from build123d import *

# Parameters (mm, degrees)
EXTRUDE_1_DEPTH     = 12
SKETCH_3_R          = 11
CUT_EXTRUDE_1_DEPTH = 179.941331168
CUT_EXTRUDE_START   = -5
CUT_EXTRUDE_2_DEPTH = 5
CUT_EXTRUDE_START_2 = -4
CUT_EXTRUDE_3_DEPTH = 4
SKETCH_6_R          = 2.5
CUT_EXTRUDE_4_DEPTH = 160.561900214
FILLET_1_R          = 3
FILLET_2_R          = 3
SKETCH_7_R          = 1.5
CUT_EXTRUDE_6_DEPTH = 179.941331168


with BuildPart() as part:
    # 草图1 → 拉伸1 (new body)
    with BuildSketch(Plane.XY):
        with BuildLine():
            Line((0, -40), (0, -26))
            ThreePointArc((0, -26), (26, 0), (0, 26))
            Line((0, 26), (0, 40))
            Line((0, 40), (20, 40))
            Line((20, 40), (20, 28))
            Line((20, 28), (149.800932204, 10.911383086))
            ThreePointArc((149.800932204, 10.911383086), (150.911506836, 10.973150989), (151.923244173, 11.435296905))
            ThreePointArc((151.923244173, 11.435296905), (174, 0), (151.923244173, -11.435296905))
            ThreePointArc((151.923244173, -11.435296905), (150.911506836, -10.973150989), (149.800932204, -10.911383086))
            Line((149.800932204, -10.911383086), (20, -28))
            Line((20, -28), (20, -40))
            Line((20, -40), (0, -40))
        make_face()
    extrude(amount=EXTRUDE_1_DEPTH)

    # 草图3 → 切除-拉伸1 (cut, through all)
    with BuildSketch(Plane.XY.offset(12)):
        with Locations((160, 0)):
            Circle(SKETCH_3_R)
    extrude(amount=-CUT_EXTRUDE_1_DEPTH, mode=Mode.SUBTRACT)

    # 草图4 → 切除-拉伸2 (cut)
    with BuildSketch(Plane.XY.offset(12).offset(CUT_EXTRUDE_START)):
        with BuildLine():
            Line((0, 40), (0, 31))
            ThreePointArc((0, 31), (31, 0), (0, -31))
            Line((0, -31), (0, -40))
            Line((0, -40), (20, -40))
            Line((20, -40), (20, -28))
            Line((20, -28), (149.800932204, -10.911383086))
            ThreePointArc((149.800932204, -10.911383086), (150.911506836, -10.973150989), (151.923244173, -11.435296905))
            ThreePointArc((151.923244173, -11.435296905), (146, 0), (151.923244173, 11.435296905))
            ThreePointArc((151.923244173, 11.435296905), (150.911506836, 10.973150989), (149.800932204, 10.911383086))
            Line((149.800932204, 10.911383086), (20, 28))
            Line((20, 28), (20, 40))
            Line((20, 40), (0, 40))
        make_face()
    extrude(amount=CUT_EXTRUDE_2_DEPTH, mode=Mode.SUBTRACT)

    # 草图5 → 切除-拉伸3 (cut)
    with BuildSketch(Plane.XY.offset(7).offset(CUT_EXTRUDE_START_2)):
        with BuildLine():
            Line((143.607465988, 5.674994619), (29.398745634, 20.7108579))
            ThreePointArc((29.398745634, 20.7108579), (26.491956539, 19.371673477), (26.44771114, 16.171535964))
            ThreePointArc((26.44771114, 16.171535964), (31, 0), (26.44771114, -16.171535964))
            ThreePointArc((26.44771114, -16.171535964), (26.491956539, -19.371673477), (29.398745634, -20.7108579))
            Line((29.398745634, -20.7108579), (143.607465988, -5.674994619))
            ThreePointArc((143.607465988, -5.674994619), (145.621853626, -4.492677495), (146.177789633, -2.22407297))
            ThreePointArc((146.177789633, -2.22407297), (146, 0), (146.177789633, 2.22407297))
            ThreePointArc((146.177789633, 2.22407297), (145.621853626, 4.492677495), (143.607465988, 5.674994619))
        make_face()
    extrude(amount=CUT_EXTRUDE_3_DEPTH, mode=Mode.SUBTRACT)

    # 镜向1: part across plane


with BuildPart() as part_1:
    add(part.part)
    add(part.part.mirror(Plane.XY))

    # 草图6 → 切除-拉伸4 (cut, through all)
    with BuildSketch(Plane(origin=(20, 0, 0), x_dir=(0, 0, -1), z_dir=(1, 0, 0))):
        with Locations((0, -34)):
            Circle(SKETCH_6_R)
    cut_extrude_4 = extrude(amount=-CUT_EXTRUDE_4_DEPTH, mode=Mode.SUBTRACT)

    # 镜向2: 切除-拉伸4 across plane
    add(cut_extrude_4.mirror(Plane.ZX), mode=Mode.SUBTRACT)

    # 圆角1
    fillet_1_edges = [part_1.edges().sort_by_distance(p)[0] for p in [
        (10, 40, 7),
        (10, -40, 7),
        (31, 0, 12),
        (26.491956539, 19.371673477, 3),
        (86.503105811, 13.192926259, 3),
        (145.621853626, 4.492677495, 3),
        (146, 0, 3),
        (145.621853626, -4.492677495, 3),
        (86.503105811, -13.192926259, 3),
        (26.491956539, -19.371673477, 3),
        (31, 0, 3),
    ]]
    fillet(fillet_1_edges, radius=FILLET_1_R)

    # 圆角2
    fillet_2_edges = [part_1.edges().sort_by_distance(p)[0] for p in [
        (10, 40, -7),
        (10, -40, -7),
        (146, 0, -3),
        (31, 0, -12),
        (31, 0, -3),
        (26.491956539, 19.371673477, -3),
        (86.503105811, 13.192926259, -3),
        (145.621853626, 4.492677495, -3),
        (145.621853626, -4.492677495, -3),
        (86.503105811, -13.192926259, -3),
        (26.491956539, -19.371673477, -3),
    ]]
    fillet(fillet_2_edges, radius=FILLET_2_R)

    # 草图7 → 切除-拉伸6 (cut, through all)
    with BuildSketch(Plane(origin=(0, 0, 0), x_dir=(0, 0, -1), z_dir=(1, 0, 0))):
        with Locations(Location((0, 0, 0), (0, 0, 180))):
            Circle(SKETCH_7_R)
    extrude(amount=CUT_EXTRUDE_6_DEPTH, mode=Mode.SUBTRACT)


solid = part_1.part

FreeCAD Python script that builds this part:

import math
import FreeCAD as App
import Part
import Sketcher

V = App.Vector
Q = App.Units.Quantity


def edges_at(feature, points):
    """Names of the edges that pass closest to the given points."""
    edges = feature.Shape.Edges
    near = lambda p: min(range(len(edges)), key=lambda i: edges[i].distToShape(Part.Vertex(*p))[0])
    return sorted({f"Edge{near(p) + 1}" for p in points})

doc = App.newDocument("Part")
params = doc.addObject("Spreadsheet::Sheet", "Params")
for row, (alias, value) in enumerate([
    ("sketch1_radius", "3 mm"),
    ("sketch1_radius2", "14 mm"),
    ("sketch1_radius3", "26 mm"),
    ("sketch1_width", "20 mm"),
    ("sketch1_height", "14 mm"),
    ("pad1_length", "12 mm"),
    ("sketch2_diameter", "22 mm"),
    ("sketch3_radius", "31 mm"),
    ("sketch3_radius2", "3 mm"),
    ("sketch3_radius3", "14 mm"),
    ("sketch3_width", "20 mm"),
    ("sketch3_height", "9 mm"),
    ("pocket2_length", "5 mm"),
    ("sketch4_radius", "3 mm"),
    ("sketch4_radius2", "31 mm"),
    ("sketch4_radius3", "14 mm"),
    ("pocket3_length", "4 mm"),
    ("sketch5_diameter", "5 mm"),
    ("fillet_radius", "3 mm"),
    ("fillet2_radius", "3 mm"),
    ("sketch6_diameter", "3 mm"),
], start=1):
    params.set(f"A{row}", alias)
    params.set(f"B{row}", "=" + value)
    params.setAlias(f"B{row}", alias)

body = doc.addObject("PartDesign::Body", "Body")

# Sketch on XY plane
sketch1 = doc.addObject("Sketcher::SketchObject", "Sketch")
body.addObject(sketch1)
sketch1.AttachmentSupport = (doc.XY_Plane, [""])
sketch1.MapMode = "FlatFace"
sketch1.addGeometry(Part.LineSegment(V(0, -26, 0), V(0, -40, 0)), False)
sketch1.addGeometry(Part.LineSegment(V(0, -40, 0), V(20, -40, 0)), False)
sketch1.addGeometry(Part.LineSegment(V(20, -40, 0), V(20, -28, 0)), False)
sketch1.addGeometry(Part.LineSegment(V(20, -28, 0), V(149.8, -10.9, 0)), False)
sketch1.addGeometry(Part.ArcOfCircle(Part.Circle(V(150.2, -13.9, 0), V(0, 0, 1), 3), math.radians(55), math.radians(97)), False)
sketch1.addGeometry(Part.ArcOfCircle(Part.Circle(V(160, 0, 0), V(0, 0, 1), 14), math.radians(-125), math.radians(125)), False)
sketch1.addGeometry(Part.ArcOfCircle(Part.Circle(V(150.2, 13.9, 0), V(0, 0, 1), 3), math.radians(-97), math.radians(-55)), False)
sketch1.addGeometry(Part.LineSegment(V(149.8, 10.9, 0), V(20, 28, 0)), False)
sketch1.addGeometry(Part.LineSegment(V(20, 28, 0), V(20, 40, 0)), False)
sketch1.addGeometry(Part.LineSegment(V(20, 40, 0), V(0, 40, 0)), False)
sketch1.addGeometry(Part.LineSegment(V(0, 40, 0), V(0, 26, 0)), False)
sketch1.addGeometry(Part.ArcOfCircle(Part.Circle(V(0, 0, 0), V(0, 0, 1), 26), math.radians(-90), math.radians(90)), False)
sketch1.addConstraint(Sketcher.Constraint("Coincident", 0, 2, 1, 1))
sketch1.addConstraint(Sketcher.Constraint("Coincident", 1, 2, 2, 1))
sketch1.addConstraint(Sketcher.Constraint("Coincident", 2, 2, 3, 1))
sketch1.addConstraint(Sketcher.Constraint("Tangent", 3, 2, 4, 2))
sketch1.addConstraint(Sketcher.Constraint("Tangent", 4, 1, 5, 1))
sketch1.addConstraint(Sketcher.Constraint("Tangent", 5, 2, 6, 2))
sketch1.addConstraint(Sketcher.Constraint("Tangent", 6, 1, 7, 1))
sketch1.addConstraint(Sketcher.Constraint("Coincident", 7, 2, 8, 1))
sketch1.addConstraint(Sketcher.Constraint("Coincident", 8, 2, 9, 1))
sketch1.addConstraint(Sketcher.Constraint("Coincident", 9, 2, 10, 1))
sketch1.addConstraint(Sketcher.Constraint("Coincident", 10, 2, 11, 2))
sketch1.addConstraint(Sketcher.Constraint("Coincident", 11, 1, 0, 1))
sketch1.addConstraint(Sketcher.Constraint("Vertical", 0))
sketch1.addConstraint(Sketcher.Constraint("Horizontal", 1))
sketch1.addConstraint(Sketcher.Constraint("Vertical", 2))
sketch1.addConstraint(Sketcher.Constraint("Vertical", 8))
sketch1.addConstraint(Sketcher.Constraint("Horizontal", 9))
sketch1.addConstraint(Sketcher.Constraint("Vertical", 10))
sketch1.addConstraint(Sketcher.Constraint("Coincident", 11, 3, -1, 1))
sketch1.addConstraint(Sketcher.Constraint("Equal", 4, 6))
sketch1.addConstraint(Sketcher.Constraint("Symmetric", 0, 2, 9, 2, -1, 1))
sketch1.addConstraint(Sketcher.Constraint("Symmetric", 4, 3, 6, 3, -1))
sketch1.addConstraint(Sketcher.Constraint("Symmetric", 2, 2, 7, 2, -1))
sketch1.addConstraint(Sketcher.Constraint("PointOnObject", 0, 2, -2))
sketch1.addConstraint(Sketcher.Constraint("Radius", 4, Q("3 mm")))
sketch1.addConstraint(Sketcher.Constraint("Radius", 5, Q("14 mm")))
sketch1.addConstraint(Sketcher.Constraint("Radius", 11, Q("26 mm")))
sketch1.addConstraint(Sketcher.Constraint("DistanceX", 1, 1, 1, 2, Q("20 mm")))
sketch1.addConstraint(Sketcher.Constraint("DistanceY", 0, 2, 0, 1, Q("14 mm")))
sketch1.addConstraint(Sketcher.Constraint("DistanceY", 2, 1, 2, 2, Q("12 mm")))
sketch1.addConstraint(Sketcher.Constraint("DistanceX", -1, 1, 5, 3, Q("160 mm")))
sketch1.addConstraint(Sketcher.Constraint("Angle", 3, Q("7.5 deg")))
sketch1.setExpression("Constraints[24]", "Params.sketch1_radius")
sketch1.setExpression("Constraints[25]", "Params.sketch1_radius2")
sketch1.setExpression("Constraints[26]", "Params.sketch1_radius3")
sketch1.setExpression("Constraints[27]", "Params.sketch1_width")
sketch1.setExpression("Constraints[28]", "Params.sketch1_height")
pad1 = doc.addObject("PartDesign::Pad", "Pad")
body.addObject(pad1)
pad1.Profile = sketch1
pad1.setExpression("Length", "Params.pad1_length")

# Sketch on XY plane
sketch2 = doc.addObject("Sketcher::SketchObject", "Sketch001")
body.addObject(sketch2)
sketch2.AttachmentSupport = (doc.XY_Plane, [""])
sketch2.MapMode = "FlatFace"
sketch2.AttachmentOffset = App.Placement(V(0, 0, 12), App.Rotation())
sketch2.addGeometry(Part.Circle(V(160, 0, 0), V(0, 0, 1), 11), False)
sketch2.addConstraint(Sketcher.Constraint("PointOnObject", 0, 3, -1))
sketch2.addConstraint(Sketcher.Constraint("Diameter", 0, Q("22 mm")))
sketch2.addConstraint(Sketcher.Constraint("DistanceX", -1, 1, 0, 3, Q("160 mm")))
sketch2.setExpression("Constraints[1]", "Params.sketch2_diameter")
pocket1 = doc.addObject("PartDesign::Pocket", "Pocket")
body.addObject(pocket1)
pocket1.Profile = sketch2
pocket1.Type = "ThroughAll"

# Sketch on XY plane
sketch3 = doc.addObject("Sketcher::SketchObject", "Sketch002")
body.addObject(sketch3)
sketch3.AttachmentSupport = (doc.XY_Plane, [""])
sketch3.MapMode = "FlatFace"
sketch3.AttachmentOffset = App.Placement(V(0, 0, 7), App.Rotation())
sketch3.addGeometry(Part.LineSegment(V(0, 40, 0), V(0, 31, 0)), False)
sketch3.addGeometry(Part.ArcOfCircle(Part.Circle(V(0, 0, 0), V(0, 0, 1), 31), math.radians(-90), math.radians(90)), False)
sketch3.addGeometry(Part.LineSegment(V(0, -31, 0), V(0, -40, 0)), False)
sketch3.addGeometry(Part.LineSegment(V(0, -40, 0), V(20, -40, 0)), False)
sketch3.addGeometry(Part.LineSegment(V(20, -40, 0), V(20, -28, 0)), False)
sketch3.addGeometry(Part.LineSegment(V(20, -28, 0), V(149.8, -10.9, 0)), False)
sketch3.addGeometry(Part.ArcOfCircle(Part.Circle(V(150.2, -13.9, 0), V(0, 0, 1), 3), math.radians(55), math.radians(97)), False)
sketch3.addGeometry(Part.ArcOfCircle(Part.Circle(V(160, 0, 0), V(0, 0, 1), 14), math.radians(125), math.radians(235)), False)
sketch3.addGeometry(Part.ArcOfCircle(Part.Circle(V(150.2, 13.9, 0), V(0, 0, 1), 3), math.radians(-97), math.radians(-55)), False)
sketch3.addGeometry(Part.LineSegment(V(149.8, 10.9, 0), V(20, 28, 0)), False)
sketch3.addGeometry(Part.LineSegment(V(20, 28, 0), V(20, 40, 0)), False)
sketch3.addGeometry(Part.LineSegment(V(20, 40, 0), V(0, 40, 0)), False)
sketch3.addConstraint(Sketcher.Constraint("Coincident", 0, 2, 1, 2))
sketch3.addConstraint(Sketcher.Constraint("Coincident", 1, 1, 2, 1))
sketch3.addConstraint(Sketcher.Constraint("Coincident", 2, 2, 3, 1))
sketch3.addConstraint(Sketcher.Constraint("Coincident", 3, 2, 4, 1))
sketch3.addConstraint(Sketcher.Constraint("Coincident", 4, 2, 5, 1))
sketch3.addConstraint(Sketcher.Constraint("Tangent", 5, 2, 6, 2))
sketch3.addConstraint(Sketcher.Constraint("Tangent", 6, 1, 7, 2))
sketch3.addConstraint(Sketcher.Constraint("Tangent", 7, 1, 8, 2))
sketch3.addConstraint(Sketcher.Constraint("Tangent", 8, 1, 9, 1))
sketch3.addConstraint(Sketcher.Constraint("Coincident", 9, 2, 10, 1))
sketch3.addConstraint(Sketcher.Constraint("Coincident", 10, 2, 11, 1))
sketch3.addConstraint(Sketcher.Constraint("Coincident", 11, 2, 0, 1))
sketch3.addConstraint(Sketcher.Constraint("Vertical", 0))
sketch3.addConstraint(Sketcher.Constraint("Vertical", 2))
sketch3.addConstraint(Sketcher.Constraint("Horizontal", 3))
sketch3.addConstraint(Sketcher.Constraint("Vertical", 4))
sketch3.addConstraint(Sketcher.Constraint("Vertical", 10))
sketch3.addConstraint(Sketcher.Constraint("Horizontal", 11))
sketch3.addConstraint(Sketcher.Constraint("Coincident", 1, 3, -1, 1))
sketch3.addConstraint(Sketcher.Constraint("Equal", 6, 8))
sketch3.addConstraint(Sketcher.Constraint("Symmetric", 2, 2, 11, 2, -1, 1))
sketch3.addConstraint(Sketcher.Constraint("Symmetric", 6, 3, 8, 3, -1))
sketch3.addConstraint(Sketcher.Constraint("Symmetric", 4, 2, 9, 2, -1))
sketch3.addConstraint(Sketcher.Constraint("PointOnObject", 0, 2, -2))
sketch3.addConstraint(Sketcher.Constraint("Radius", 1, Q("31 mm")))
sketch3.addConstraint(Sketcher.Constraint("Radius", 6, Q("3 mm")))
sketch3.addConstraint(Sketcher.Constraint("Radius", 7, Q("14 mm")))
sketch3.addConstraint(Sketcher.Constraint("DistanceX", 3, 1, 3, 2, Q("20 mm")))
sketch3.addConstraint(Sketcher.Constraint("DistanceY", 0, 2, 0, 1, Q("9 mm")))
sketch3.addConstraint(Sketcher.Constraint("DistanceY", 4, 1, 4, 2, Q("12 mm")))
sketch3.addConstraint(Sketcher.Constraint("DistanceX", -1, 1, 7, 3, Q("160 mm")))
sketch3.addConstraint(Sketcher.Constraint("Angle", 5, Q("7.5 deg")))
sketch3.setExpression("Constraints[24]", "Params.sketch3_radius")
sketch3.setExpression("Constraints[25]", "Params.sketch3_radius2")
sketch3.setExpression("Constraints[26]", "Params.sketch3_radius3")
sketch3.setExpression("Constraints[27]", "Params.sketch3_width")
sketch3.setExpression("Constraints[28]", "Params.sketch3_height")
pocket2 = doc.addObject("PartDesign::Pocket", "Pocket001")
body.addObject(pocket2)
pocket2.Profile = sketch3
pocket2.setExpression("Length", "Params.pocket2_length")
pocket2.Reversed = True

# Sketch on XY plane
sketch4 = doc.addObject("Sketcher::SketchObject", "Sketch003")
body.addObject(sketch4)
sketch4.AttachmentSupport = (doc.XY_Plane, [""])
sketch4.MapMode = "FlatFace"
sketch4.AttachmentOffset = App.Placement(V(0, 0, 3), App.Rotation())
sketch4.addGeometry(Part.LineSegment(V(143.6, 5.7, 0), V(29.4, 20.7, 0)), False)
sketch4.addGeometry(Part.ArcOfCircle(Part.Circle(V(29, 17.7, 0), V(0, 0, 1), 3), math.radians(82), math.radians(211)), False)
sketch4.addGeometry(Part.ArcOfCircle(Part.Circle(V(0, 0, 0), V(0, 0, 1), 31), math.radians(-31), math.radians(31)), False)
sketch4.addGeometry(Part.ArcOfCircle(Part.Circle(V(29, -17.7, 0), V(0, 0, 1), 3), math.radians(149), math.radians(278)), False)
sketch4.addGeometry(Part.LineSegment(V(29.4, -20.7, 0), V(143.6, -5.7, 0)), False)
sketch4.addGeometry(Part.ArcOfCircle(Part.Circle(V(143.2, -2.7, 0), V(0, 0, 1), 3), math.radians(-83), math.radians(9)), False)
sketch4.addGeometry(Part.ArcOfCircle(Part.Circle(V(160, 0, 0), V(0, 0, 1), 14), math.radians(170.86), math.radians(189.14)), False)
sketch4.addGeometry(Part.ArcOfCircle(Part.Circle(V(143.2, 2.7, 0), V(0, 0, 1), 3), math.radians(-9), math.radians(83)), False)
sketch4.addConstraint(Sketcher.Constraint("Tangent", 0, 2, 1, 1))
sketch4.addConstraint(Sketcher.Constraint("Tangent", 1, 2, 2, 2))
sketch4.addConstraint(Sketcher.Constraint("Tangent", 2, 1, 3, 1))
sketch4.addConstraint(Sketcher.Constraint("Tangent", 3, 2, 4, 1))
sketch4.addConstraint(Sketcher.Constraint("Tangent", 4, 2, 5, 1))
sketch4.addConstraint(Sketcher.Constraint("Tangent", 5, 2, 6, 2))
sketch4.addConstraint(Sketcher.Constraint("Tangent", 6, 1, 7, 1))
sketch4.addConstraint(Sketcher.Constraint("Tangent", 7, 2, 0, 1))
sketch4.addConstraint(Sketcher.Constraint("Coincident", 2, 3, -1, 1))
sketch4.addConstraint(Sketcher.Constraint("Equal", 1, 3))
sketch4.addConstraint(Sketcher.Constraint("Equal", 3, 5))
sketch4.addConstraint(Sketcher.Constraint("Equal", 5, 7))
sketch4.addConstraint(Sketcher.Constraint("Symmetric", 5, 3, 7, 3, -1))
sketch4.addConstraint(Sketcher.Constraint("Vertical", 1, 3, 3, 3))
sketch4.addConstraint(Sketcher.Constraint("Radius", 1, Q("3 mm")))
sketch4.addConstraint(Sketcher.Constraint("Radius", 2, Q("31 mm")))
sketch4.addConstraint(Sketcher.Constraint("Radius", 6, Q("14 mm")))
sketch4.addConstraint(Sketcher.Constraint("DistanceX", -1, 1, 6, 3, Q("160 mm")))
sketch4.addConstraint(Sketcher.Constraint("Angle", 0, Q("172.5 deg")))
sketch4.addConstraint(Sketcher.Constraint("DistanceX", 3, 3, 4, 2, Q("114.600299 mm")))
sketch4.setExpression("Constraints[14]", "Params.sketch4_radius")
sketch4.setExpression("Constraints[15]", "Params.sketch4_radius2")
sketch4.setExpression("Constraints[16]", "Params.sketch4_radius3")
pocket3 = doc.addObject("PartDesign::Pocket", "Pocket002")
body.addObject(pocket3)
pocket3.Profile = sketch4
pocket3.setExpression("Length", "Params.pocket3_length")
pocket3.Reversed = True
body2 = doc.addObject("PartDesign::Body", "Body001")
doc.recompute()

body2.BaseFeature = body
doc.recompute()

mirroring = doc.addObject("Part::Mirroring", "Mirroring")
mirroring.Source = body
mirroring.Base = V(0, 0, 0)
mirroring.Normal = V(0, 0, 1)
body3 = doc.addObject("PartDesign::Body", "Body002")
body3.BaseFeature = mirroring
boolean = doc.addObject("PartDesign::Boolean", "Boolean")
body2.addObject(boolean)
boolean.Type = "Fuse"
boolean.addObjects([body3])
doc.recompute()

# Sketch on YZ plane
sketch5 = doc.addObject("Sketcher::SketchObject", "Sketch004")
body2.addObject(sketch5)
sketch5.AttachmentSupport = (doc.getObject("YZ_Plane001"), [""])
sketch5.MapMode = "FlatFace"
sketch5.AttachmentOffset = App.Placement(V(0, 0, 20), App.Rotation())
sketch5.addGeometry(Part.Circle(V(-34, 0, 0), V(0, 0, 1), 2.5), False)
sketch5.addConstraint(Sketcher.Constraint("PointOnObject", 0, 3, -1))
sketch5.addConstraint(Sketcher.Constraint("Diameter", 0, Q("5 mm")))
sketch5.addConstraint(Sketcher.Constraint("DistanceX", 0, 3, -1, 1, Q("34 mm")))
sketch5.setExpression("Constraints[1]", "Params.sketch5_diameter")
pocket4 = doc.addObject("PartDesign::Pocket", "Pocket003")
body2.addObject(pocket4)
pocket4.Profile = sketch5
pocket4.Type = "ThroughAll"
doc.recompute()

mirrored = doc.addObject("PartDesign::Mirrored", "Mirrored")
body2.addObject(mirrored)
mirrored.Originals = [pocket4]
mirrored.MirrorPlane = (doc.getObject("XZ_Plane001"), [""])
body2.Tip = mirrored
doc.recompute()

fillet = doc.addObject("PartDesign::Fillet", "Fillet")
body2.addObject(fillet)
fillet.Base = (mirrored, edges_at(mirrored, [
    (10, 40, 7),
    (10, -40, 7),
    (31, 0, 12),
    (26.492, 19.372, 3),
    (86.503, 13.193, 3),
    (145.622, 4.493, 3),
    (146, 0, 3),
    (145.622, -4.493, 3),
    (86.503, -13.193, 3),
    (26.492, -19.372, 3),
    (31, 0, 3),
]))
fillet.setExpression("Radius", "Params.fillet_radius")
doc.recompute()

fillet2 = doc.addObject("PartDesign::Fillet", "Fillet001")
body2.addObject(fillet2)
fillet2.Base = (fillet, edges_at(fillet, [
    (10, 40, -7),
    (10, -40, -7),
    (146, 0, -3),
    (31, 0, -12),
    (31, 0, -3),
    (26.492, 19.372, -3),
    (86.503, 13.193, -3),
    (145.622, 4.493, -3),
    (145.622, -4.493, -3),
    (86.503, -13.193, -3),
    (26.492, -19.372, -3),
]))
fillet2.setExpression("Radius", "Params.fillet2_radius")

# Sketch on YZ plane
sketch6 = doc.addObject("Sketcher::SketchObject", "Sketch005")
body2.addObject(sketch6)
sketch6.AttachmentSupport = (doc.getObject("YZ_Plane001"), [""])
sketch6.MapMode = "FlatFace"
sketch6.addGeometry(Part.Circle(V(0, 0, 0), V(0, 0, 1), 1.5), False)
sketch6.addConstraint(Sketcher.Constraint("Coincident", 0, 3, -1, 1))
sketch6.addConstraint(Sketcher.Constraint("Diameter", 0, Q("3 mm")))
sketch6.setExpression("Constraints[1]", "Params.sketch6_diameter")
pocket5 = doc.addObject("PartDesign::Pocket", "Pocket004")
body2.addObject(pocket5)
pocket5.Profile = sketch6
pocket5.Type = "ThroughAll"
pocket5.Reversed = True
mirroring.Visibility = False

doc.recompute()
